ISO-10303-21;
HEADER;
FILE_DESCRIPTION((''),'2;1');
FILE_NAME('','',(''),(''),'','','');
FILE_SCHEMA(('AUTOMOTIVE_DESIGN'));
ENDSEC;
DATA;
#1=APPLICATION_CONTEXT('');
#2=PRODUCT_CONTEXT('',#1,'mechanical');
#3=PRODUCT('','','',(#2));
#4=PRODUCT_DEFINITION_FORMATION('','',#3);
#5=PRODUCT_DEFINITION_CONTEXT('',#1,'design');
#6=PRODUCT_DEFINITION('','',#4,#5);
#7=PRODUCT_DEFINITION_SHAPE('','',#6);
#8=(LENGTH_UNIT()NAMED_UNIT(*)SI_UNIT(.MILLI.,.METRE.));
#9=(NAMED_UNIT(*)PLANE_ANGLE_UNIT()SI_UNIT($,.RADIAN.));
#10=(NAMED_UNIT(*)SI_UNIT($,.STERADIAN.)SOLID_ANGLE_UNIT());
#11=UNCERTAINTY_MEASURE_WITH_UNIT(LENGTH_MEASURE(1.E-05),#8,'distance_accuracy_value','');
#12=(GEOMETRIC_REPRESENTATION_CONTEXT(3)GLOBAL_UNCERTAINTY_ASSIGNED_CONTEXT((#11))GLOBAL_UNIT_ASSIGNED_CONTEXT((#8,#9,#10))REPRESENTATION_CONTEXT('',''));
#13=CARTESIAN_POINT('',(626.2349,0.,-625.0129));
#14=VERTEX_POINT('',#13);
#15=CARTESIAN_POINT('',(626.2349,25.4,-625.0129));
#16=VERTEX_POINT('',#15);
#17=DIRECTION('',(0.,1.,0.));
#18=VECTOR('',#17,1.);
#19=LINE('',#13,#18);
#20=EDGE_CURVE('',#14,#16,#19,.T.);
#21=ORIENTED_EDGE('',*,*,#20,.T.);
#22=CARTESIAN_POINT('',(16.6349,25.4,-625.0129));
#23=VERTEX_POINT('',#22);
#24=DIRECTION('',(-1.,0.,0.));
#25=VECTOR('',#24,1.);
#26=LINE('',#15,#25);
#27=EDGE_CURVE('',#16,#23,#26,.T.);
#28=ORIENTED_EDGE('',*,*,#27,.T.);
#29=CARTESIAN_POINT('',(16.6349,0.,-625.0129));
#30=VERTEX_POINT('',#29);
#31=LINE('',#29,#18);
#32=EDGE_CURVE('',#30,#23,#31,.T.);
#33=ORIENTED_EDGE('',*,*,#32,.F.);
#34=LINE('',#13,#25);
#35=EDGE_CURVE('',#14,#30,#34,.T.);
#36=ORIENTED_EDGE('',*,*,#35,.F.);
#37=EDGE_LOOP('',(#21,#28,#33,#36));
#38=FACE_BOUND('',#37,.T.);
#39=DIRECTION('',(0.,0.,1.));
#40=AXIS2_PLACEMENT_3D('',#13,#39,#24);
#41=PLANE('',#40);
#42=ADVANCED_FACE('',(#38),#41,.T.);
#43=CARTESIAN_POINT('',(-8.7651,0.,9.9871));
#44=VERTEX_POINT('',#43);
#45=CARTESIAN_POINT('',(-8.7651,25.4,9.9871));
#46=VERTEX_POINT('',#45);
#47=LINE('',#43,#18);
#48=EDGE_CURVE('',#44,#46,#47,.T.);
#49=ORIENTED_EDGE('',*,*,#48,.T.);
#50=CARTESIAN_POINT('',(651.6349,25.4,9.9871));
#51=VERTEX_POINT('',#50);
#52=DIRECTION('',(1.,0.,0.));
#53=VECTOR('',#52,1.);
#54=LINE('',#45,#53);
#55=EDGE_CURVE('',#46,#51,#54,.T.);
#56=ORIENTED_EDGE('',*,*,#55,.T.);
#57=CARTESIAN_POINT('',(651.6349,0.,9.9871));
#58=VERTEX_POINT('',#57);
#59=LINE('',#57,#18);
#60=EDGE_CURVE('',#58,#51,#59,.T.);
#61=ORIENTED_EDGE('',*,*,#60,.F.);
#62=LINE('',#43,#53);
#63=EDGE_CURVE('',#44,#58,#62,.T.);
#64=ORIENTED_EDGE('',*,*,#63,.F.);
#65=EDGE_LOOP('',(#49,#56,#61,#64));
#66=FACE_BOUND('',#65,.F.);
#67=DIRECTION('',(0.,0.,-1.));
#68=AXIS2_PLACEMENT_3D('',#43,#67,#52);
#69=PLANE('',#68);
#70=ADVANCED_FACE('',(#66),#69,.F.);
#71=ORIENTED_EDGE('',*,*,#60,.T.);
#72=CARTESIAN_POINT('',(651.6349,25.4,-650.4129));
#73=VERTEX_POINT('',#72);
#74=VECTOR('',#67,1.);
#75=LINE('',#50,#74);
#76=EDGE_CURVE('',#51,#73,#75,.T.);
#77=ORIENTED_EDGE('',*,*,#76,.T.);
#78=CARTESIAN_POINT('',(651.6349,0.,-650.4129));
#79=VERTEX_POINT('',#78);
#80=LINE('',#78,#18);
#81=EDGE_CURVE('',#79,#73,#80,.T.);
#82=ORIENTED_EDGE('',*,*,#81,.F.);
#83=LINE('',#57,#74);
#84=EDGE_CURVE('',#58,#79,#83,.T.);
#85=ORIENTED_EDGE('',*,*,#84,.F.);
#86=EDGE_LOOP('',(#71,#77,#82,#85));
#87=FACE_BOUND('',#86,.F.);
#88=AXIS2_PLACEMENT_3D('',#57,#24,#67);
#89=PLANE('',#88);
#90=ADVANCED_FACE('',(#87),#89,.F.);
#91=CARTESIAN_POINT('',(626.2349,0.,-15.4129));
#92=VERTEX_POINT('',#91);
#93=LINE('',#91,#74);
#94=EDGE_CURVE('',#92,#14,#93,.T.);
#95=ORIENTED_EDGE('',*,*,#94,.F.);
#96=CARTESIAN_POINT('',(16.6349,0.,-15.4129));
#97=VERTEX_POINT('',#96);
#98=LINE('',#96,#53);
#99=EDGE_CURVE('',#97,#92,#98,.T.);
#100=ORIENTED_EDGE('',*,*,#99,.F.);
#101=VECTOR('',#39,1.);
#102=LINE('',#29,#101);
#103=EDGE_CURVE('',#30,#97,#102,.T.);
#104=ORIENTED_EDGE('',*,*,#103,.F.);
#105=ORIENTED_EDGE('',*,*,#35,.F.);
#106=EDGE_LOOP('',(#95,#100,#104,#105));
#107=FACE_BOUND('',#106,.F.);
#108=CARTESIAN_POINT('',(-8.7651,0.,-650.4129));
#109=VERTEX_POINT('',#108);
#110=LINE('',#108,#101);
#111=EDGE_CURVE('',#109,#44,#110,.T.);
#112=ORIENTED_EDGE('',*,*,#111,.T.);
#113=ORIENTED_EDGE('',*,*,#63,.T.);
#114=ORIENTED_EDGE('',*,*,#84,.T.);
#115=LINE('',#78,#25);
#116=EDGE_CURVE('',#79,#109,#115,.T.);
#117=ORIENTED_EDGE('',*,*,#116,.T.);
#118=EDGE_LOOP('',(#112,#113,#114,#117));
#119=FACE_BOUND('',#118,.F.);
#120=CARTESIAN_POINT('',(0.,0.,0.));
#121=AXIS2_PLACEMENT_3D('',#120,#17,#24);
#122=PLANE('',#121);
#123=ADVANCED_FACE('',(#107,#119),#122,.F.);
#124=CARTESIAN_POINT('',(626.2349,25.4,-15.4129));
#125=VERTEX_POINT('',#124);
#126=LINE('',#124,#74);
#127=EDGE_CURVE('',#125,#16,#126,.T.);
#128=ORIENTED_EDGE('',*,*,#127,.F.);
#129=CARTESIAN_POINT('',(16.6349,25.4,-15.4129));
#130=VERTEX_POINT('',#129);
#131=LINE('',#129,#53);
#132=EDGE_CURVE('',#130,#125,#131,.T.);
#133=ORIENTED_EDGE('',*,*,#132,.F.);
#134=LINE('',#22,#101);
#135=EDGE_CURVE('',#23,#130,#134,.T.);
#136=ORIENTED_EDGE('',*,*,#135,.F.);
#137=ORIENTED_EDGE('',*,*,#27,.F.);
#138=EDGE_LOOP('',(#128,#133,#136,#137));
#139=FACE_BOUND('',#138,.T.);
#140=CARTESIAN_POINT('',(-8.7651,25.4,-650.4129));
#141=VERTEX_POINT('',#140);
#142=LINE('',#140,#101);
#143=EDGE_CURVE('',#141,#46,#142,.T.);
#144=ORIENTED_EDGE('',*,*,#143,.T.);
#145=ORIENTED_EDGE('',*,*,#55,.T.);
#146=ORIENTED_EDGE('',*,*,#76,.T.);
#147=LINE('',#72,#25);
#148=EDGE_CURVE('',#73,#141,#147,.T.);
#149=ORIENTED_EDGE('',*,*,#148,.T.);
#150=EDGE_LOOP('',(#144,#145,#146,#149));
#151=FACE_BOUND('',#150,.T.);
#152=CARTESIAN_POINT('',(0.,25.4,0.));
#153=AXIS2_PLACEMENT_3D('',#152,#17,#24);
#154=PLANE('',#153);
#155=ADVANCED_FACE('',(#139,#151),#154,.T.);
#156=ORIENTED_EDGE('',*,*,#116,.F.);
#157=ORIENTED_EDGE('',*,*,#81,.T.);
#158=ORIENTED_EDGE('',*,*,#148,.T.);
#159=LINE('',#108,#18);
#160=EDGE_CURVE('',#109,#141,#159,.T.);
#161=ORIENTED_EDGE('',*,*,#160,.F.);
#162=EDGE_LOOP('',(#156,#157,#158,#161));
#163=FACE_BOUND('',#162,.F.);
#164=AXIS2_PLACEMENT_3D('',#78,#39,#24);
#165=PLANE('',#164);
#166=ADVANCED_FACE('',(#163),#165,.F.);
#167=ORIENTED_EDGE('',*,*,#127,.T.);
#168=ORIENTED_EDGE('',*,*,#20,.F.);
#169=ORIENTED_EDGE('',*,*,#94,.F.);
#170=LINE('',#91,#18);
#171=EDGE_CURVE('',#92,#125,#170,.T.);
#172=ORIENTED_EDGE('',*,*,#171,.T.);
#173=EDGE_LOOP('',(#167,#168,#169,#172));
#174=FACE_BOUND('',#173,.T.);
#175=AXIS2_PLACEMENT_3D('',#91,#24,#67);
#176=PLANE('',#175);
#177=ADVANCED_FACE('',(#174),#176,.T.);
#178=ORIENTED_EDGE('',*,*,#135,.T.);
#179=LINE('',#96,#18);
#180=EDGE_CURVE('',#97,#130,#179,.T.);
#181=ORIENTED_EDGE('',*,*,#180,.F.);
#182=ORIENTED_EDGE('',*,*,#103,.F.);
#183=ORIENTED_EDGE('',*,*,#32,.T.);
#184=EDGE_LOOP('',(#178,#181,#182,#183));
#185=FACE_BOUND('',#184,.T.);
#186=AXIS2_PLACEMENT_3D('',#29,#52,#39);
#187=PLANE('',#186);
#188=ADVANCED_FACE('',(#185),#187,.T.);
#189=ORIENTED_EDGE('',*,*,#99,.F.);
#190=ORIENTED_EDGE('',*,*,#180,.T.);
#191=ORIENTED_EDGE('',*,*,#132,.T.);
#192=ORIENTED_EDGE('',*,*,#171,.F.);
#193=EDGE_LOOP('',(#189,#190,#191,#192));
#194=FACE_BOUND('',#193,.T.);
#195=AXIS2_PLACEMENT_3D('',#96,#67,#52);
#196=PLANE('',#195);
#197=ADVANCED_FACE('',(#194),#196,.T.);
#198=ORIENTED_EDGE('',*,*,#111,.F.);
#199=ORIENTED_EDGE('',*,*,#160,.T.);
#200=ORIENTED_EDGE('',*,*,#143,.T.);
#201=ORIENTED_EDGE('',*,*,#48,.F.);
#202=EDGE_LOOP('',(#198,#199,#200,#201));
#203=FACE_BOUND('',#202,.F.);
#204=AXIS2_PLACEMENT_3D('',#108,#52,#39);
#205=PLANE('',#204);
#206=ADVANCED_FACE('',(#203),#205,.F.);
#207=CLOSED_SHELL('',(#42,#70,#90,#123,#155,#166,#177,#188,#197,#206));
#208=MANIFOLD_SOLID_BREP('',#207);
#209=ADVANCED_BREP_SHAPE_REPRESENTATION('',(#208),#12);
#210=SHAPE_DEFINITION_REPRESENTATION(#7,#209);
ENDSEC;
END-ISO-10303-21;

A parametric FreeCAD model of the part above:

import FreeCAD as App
import Part
import Sketcher
Q = App.Units.Quantity

doc = App.newDocument("Part")
body = doc.addObject("PartDesign::Body", "Body")

# Sketch on XZ plane
sketch1 = body.newObject("Sketcher::SketchObject", "Sketch")
sketch1.AttachmentSupport = (doc.getObject("XZ_Plane"), [""])
sketch1.MapMode = "FlatFace"
sketch1.addGeometry([
    Part.LineSegment(App.Vector(-8.7651, -650.4129, 0), App.Vector(-8.7651, 9.9871, 0)),  # 0
    Part.LineSegment(App.Vector(-8.7651, 9.9871, 0), App.Vector(651.6349, 9.9871, 0)),  # 1
    Part.LineSegment(App.Vector(651.6349, 9.9871, 0), App.Vector(651.6349, -650.4129, 0)),  # 2
    Part.LineSegment(App.Vector(651.6349, -650.4129, 0), App.Vector(-8.7651, -650.4129, 0)),  # 3
    Part.LineSegment(App.Vector(626.2349, -15.4129, 0), App.Vector(16.6349, -15.4129, 0)),  # 4
    Part.LineSegment(App.Vector(16.6349, -15.4129, 0), App.Vector(16.6349, -625.0129, 0)),  # 5
    Part.LineSegment(App.Vector(16.6349, -625.0129, 0), App.Vector(626.2349, -625.0129, 0)),  # 6
    Part.LineSegment(App.Vector(626.2349, -625.0129, 0), App.Vector(626.2349, -15.4129, 0)),  # 7
], False)
sketch1.addConstraint([
    Sketcher.Constraint("Coincident", 0, 2, 1, 1),
    Sketcher.Constraint("Coincident", 1, 2, 2, 1),
    Sketcher.Constraint("Coincident", 2, 2, 3, 1),
    Sketcher.Constraint("Coincident", 3, 2, 0, 1),
    Sketcher.Constraint("Coincident", 4, 2, 5, 1),
    Sketcher.Constraint("Coincident", 5, 2, 6, 1),
    Sketcher.Constraint("Coincident", 6, 2, 7, 1),
    Sketcher.Constraint("Coincident", 7, 2, 4, 1),
    Sketcher.Constraint("Vertical", 0),
    Sketcher.Constraint("Horizontal", 1),
    Sketcher.Constraint("Vertical", 2),
    Sketcher.Constraint("Horizontal", 3),
    Sketcher.Constraint("Horizontal", 4),
    Sketcher.Constraint("Vertical", 5),
    Sketcher.Constraint("Horizontal", 6),
    Sketcher.Constraint("Vertical", 7),
    Sketcher.Constraint("Equal", 3, 0),
    Sketcher.Constraint("Equal", 6, 5),
    Sketcher.Constraint("DistanceX", 1, 1, 1, 2, Q("26 in")),
    Sketcher.Constraint("DistanceX", 0, 2, 4, 2, Q("1 in")),
    Sketcher.Constraint("DistanceY", 4, 2, 0, 2, Q("1 in")),
    Sketcher.Constraint("DistanceY", 3, 2, 5, 2, Q("1 in")),
    Sketcher.Constraint("DistanceY", -1, 1, 0, 2, Q("0.3932 in")),
    Sketcher.Constraint("DistanceX", 0, 2, -1, 1, Q("8.765 mm")),
])
pad1 = body.newObject("PartDesign::Pad", "Pad")
pad1.Profile = sketch1
pad1.Length = Q("1 in")
pad1.Reversed = True

doc.recompute()
